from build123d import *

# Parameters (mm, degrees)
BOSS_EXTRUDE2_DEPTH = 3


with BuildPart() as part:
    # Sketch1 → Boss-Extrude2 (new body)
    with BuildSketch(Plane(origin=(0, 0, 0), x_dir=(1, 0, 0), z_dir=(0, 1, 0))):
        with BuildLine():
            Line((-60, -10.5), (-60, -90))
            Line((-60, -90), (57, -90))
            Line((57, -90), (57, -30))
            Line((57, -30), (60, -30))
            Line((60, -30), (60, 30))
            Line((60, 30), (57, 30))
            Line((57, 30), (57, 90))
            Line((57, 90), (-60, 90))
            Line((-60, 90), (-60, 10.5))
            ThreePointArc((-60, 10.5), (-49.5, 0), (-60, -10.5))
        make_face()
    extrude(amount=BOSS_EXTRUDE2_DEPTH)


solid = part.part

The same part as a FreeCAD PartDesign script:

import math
import FreeCAD as App
import Part
import Sketcher
from FreeCAD import Vector

doc = App.newDocument("Part")
body = doc.addObject("PartDesign::Body", "Body")

sketch1 = body.newObject("Sketcher::SketchObject", "Sketch")
sketch1.AttachmentSupport = (doc.getObject("XZ_Plane"), [""])
sketch1.MapMode = "FlatFace"
sketch1.addGeometry([
    Part.LineSegment(Vector(-60, 10.5, 0), Vector(-60, 90, 0)),
    Part.LineSegment(Vector(-60, 90, 0), Vector(57, 90, 0)),
    Part.LineSegment(Vector(57, 90, 0), Vector(57, 30, 0)),
    Part.LineSegment(Vector(57, 30, 0), Vector(60, 30, 0)),
    Part.LineSegment(Vector(60, 30, 0), Vector(60, -30, 0)),
    Part.LineSegment(Vector(60, -30, 0), Vector(57, -30, 0)),
    Part.LineSegment(Vector(57, -30, 0), Vector(57, -90, 0)),
    Part.LineSegment(Vector(57, -90, 0), Vector(-60, -90, 0)),
    Part.LineSegment(Vector(-60, -90, 0), Vector(-60, -10.5, 0)),
    Part.ArcOfCircle(Part.Circle(Vector(-60, 0, 0), Vector(0, 0, 1), 10.5), math.radians(-90), math.radians(90)),
], False)
sketch1.addConstraint([
    Sketcher.Constraint("Coincident", 0, 2, 1, 1),
    Sketcher.Constraint("Coincident", 1, 2, 2, 1),
    Sketcher.Constraint("Coincident", 2, 2, 3, 1),
    Sketcher.Constraint("Coincident", 3, 2, 4, 1),
    Sketcher.Constraint("Coincident", 4, 2, 5, 1),
    Sketcher.Constraint("Coincident", 5, 2, 6, 1),
    Sketcher.Constraint("Coincident", 6, 2, 7, 1),
    Sketcher.Constraint("Coincident", 7, 2, 8, 1),
    Sketcher.Constraint("Coincident", 8, 2, 9, 1),
    Sketcher.Constraint("Coincident", 9, 2, 0, 1),
    Sketcher.Constraint("Vertical", 0),
    Sketcher.Constraint("Horizontal", 1),
    Sketcher.Constraint("Vertical", 2),
    Sketcher.Constraint("Horizontal", 3),
    Sketcher.Constraint("Vertical", 4),
    Sketcher.Constraint("Horizontal", 5),
    Sketcher.Constraint("Vertical", 6),
    Sketcher.Constraint("Horizontal", 7),
    Sketcher.Constraint("Vertical", 8),
    Sketcher.Constraint("Symmetric", 2, 2, 5, 2, -1),
    Sketcher.Constraint("Symmetric", 0, 2, 7, 2, -1),
    Sketcher.Constraint("PointOnObject", 9, 3, -1),
    Sketcher.Constraint("Vertical", 9, 3, 0, 2),
    Sketcher.Constraint("Equal", 2, 4),
    Sketcher.Constraint("Radius", 9, 10.5),
    Sketcher.Constraint("DistanceX", 1, 1, 1, 2, 117.0),
    Sketcher.Constraint("DistanceX", 3, 1, 3, 2, 3.0),
    Sketcher.Constraint("DistanceY", 2, 2, 2, 1, 60.0),
    Sketcher.Constraint("DistanceX", 9, 3, -1, 1, 60.0),
])
pad1 = body.newObject("PartDesign::Pad", "Pad")
pad1.Profile = sketch1
pad1.Length = 3
pad1.Reversed = True

doc.recompute()
